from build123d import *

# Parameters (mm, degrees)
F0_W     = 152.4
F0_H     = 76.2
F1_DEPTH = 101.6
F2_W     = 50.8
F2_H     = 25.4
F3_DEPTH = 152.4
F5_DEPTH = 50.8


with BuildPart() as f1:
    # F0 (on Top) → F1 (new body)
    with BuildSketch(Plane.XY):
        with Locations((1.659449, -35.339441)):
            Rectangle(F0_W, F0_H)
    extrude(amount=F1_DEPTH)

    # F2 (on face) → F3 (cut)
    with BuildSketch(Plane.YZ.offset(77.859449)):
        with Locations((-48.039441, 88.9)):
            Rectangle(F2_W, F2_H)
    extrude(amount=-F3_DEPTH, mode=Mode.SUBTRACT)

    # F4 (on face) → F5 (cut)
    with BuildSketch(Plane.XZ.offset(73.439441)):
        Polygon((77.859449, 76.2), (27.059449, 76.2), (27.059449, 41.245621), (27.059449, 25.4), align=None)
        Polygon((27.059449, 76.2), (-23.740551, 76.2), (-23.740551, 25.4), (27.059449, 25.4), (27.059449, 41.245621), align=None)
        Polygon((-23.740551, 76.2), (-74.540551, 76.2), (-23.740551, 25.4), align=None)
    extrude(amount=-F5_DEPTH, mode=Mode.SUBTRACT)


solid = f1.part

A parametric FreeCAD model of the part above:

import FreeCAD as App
import Part
import Sketcher

V = App.Vector
Q = App.Units.Quantity


def add_polygon(sketch, points):
    """Adds a closed chain of lines whose ends are joined by coincident constraints."""
    first, n = sketch.GeometryCount, len(points)
    for a, b in zip(points, points[1:] + points[:1]):
        sketch.addGeometry(Part.LineSegment(App.Vector(*a, 0), App.Vector(*b, 0)), False)
    for i in range(n):
        sketch.addConstraint(Sketcher.Constraint("Coincident", first + i, 2, first + (i + 1) % n, 1))

doc = App.newDocument("Part")
body = doc.addObject("PartDesign::Body", "Body")

# Sketch on XY plane
sketch1 = doc.addObject("Sketcher::SketchObject", "Sketch")
body.addObject(sketch1)
sketch1.AttachmentSupport = (doc.XY_Plane, [""])
sketch1.MapMode = "FlatFace"
add_polygon(sketch1, [(-75, 3), (-75, -73), (78, -73), (78, 3)])  # lines 0-3
sketch1.addConstraint([
    Sketcher.Constraint("Vertical", 0),
    Sketcher.Constraint("Horizontal", 1),
    Sketcher.Constraint("Vertical", 2),
    Sketcher.Constraint("Horizontal", 3),
    Sketcher.Constraint("DistanceX", 1, 1, 1, 2, Q("6 in")),
    Sketcher.Constraint("DistanceY", 0, 2, 0, 1, Q("3 in")),
    Sketcher.Constraint("DistanceX", 0, 2, -1, 1, Q("74.540551 mm")),
    Sketcher.Constraint("DistanceY", 0, 2, -1, 1, Q("73.439441 mm")),
])
pad1 = doc.addObject("PartDesign::Pad", "Pad")
body.addObject(pad1)
pad1.Profile = sketch1
pad1.Length = Q("4 in")

# Sketch on YZ plane
sketch2 = doc.addObject("Sketcher::SketchObject", "Sketch001")
body.addObject(sketch2)
sketch2.AttachmentSupport = (doc.YZ_Plane, [""])
sketch2.MapMode = "FlatFace"
sketch2.AttachmentOffset = App.Placement(V(0, 0, 77.859449), App.Rotation())
add_polygon(sketch2, [(-73, 102), (-73, 76), (-23, 76), (-23, 102)])  # lines 0-3
sketch2.addConstraint([
    Sketcher.Constraint("Vertical", 0),
    Sketcher.Constraint("Horizontal", 1),
    Sketcher.Constraint("Vertical", 2),
    Sketcher.Constraint("Horizontal", 3),
    Sketcher.Constraint("DistanceX", 1, 1, 1, 2, Q("2 in")),
    Sketcher.Constraint("DistanceY", 0, 2, 0, 1, Q("1 in")),
    Sketcher.Constraint("DistanceY", -1, 1, 0, 2, Q("3 in")),
    Sketcher.Constraint("DistanceX", 0, 2, -1, 1, Q("73.439441 mm")),
])
pocket1 = doc.addObject("PartDesign::Pocket", "Pocket")
body.addObject(pocket1)
pocket1.Profile = sketch2
pocket1.Length = Q("6 in")

# Sketch on XZ plane
sketch3 = doc.addObject("Sketcher::SketchObject", "Sketch002")
body.addObject(sketch3)
sketch3.AttachmentSupport = (doc.XZ_Plane, [""])
sketch3.MapMode = "FlatFace"
sketch3.AttachmentOffset = App.Placement(V(0, 0, 73.439441), App.Rotation())
add_polygon(sketch3, [(78, 76), (-75, 76), (-24, 25), (27, 25)])  # lines 0-3
sketch3.addConstraint([
    Sketcher.Constraint("Horizontal", 0),
    Sketcher.Constraint("Horizontal", 2),
    Sketcher.Constraint("Perpendicular", 1, 3),
    Sketcher.Constraint("Equal", 1, 3),
    Sketcher.Constraint("DistanceX", 0, 2, 0, 1, Q("6 in")),
    Sketcher.Constraint("DistanceX", 2, 1, 2, 2, Q("2 in")),
    Sketcher.Constraint("DistanceY", -1, 1, 0, 2, Q("3 in")),
    Sketcher.Constraint("DistanceX", 0, 2, -1, 1, Q("74.540551 mm")),
])
pocket2 = doc.addObject("PartDesign::Pocket", "Pocket001")
body.addObject(pocket2)
pocket2.Profile = sketch3
pocket2.Length = Q("2 in")

doc.recompute()
